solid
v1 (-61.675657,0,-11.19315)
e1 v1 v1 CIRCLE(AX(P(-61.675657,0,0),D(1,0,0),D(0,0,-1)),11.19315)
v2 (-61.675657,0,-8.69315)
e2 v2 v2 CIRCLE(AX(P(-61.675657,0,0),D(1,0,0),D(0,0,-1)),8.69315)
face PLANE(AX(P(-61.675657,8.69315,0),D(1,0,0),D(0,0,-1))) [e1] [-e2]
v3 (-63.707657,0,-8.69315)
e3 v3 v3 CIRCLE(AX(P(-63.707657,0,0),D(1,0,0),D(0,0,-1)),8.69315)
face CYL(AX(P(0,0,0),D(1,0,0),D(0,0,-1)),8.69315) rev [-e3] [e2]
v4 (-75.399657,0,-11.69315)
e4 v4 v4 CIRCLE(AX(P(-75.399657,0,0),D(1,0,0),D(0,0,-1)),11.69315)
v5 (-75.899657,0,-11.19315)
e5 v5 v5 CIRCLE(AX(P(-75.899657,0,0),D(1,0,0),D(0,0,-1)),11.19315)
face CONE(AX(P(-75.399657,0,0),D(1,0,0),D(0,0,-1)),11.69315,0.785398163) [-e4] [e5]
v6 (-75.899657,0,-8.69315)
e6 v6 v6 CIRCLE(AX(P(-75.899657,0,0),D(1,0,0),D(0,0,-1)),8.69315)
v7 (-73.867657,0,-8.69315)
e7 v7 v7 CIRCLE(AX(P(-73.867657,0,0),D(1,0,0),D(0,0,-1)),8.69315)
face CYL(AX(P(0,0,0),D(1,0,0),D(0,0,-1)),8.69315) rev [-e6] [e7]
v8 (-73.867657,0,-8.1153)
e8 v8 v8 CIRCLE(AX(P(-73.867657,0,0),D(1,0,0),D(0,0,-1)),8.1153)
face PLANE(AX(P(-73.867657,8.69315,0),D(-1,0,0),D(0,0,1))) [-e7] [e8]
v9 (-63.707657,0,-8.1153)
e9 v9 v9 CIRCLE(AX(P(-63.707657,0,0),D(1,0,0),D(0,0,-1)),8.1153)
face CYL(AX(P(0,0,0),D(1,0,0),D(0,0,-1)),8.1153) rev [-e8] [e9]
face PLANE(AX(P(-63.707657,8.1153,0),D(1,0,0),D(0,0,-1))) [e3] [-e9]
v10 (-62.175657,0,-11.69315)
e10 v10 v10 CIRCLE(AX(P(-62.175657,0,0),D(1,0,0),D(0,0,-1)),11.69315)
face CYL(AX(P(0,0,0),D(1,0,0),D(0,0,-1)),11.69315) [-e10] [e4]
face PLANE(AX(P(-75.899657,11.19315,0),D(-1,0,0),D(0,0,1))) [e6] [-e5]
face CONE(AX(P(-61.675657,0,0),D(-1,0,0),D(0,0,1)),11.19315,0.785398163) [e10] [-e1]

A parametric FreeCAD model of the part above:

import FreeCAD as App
import Part
import Sketcher
from FreeCAD import Vector
Q = App.Units.Quantity

doc = App.newDocument("Part")
params = doc.addObject("Spreadsheet::Sheet", "Params")
for row, (alias, value) in enumerate([
    ("sketch1_width", "0.4 in"),
    ("sketch1_width2", "0.08 in"),
    ("revolution_angle", "360 deg"),
], start=1):
    params.set(f"A{row}", alias)
    params.set(f"B{row}", "=" + value)
    params.setAlias(f"B{row}", alias)

body = doc.addObject("PartDesign::Body", "Body")

# Sketch on XY plane
sketch1 = body.newObject("Sketcher::SketchObject", "Sketch")
sketch1.AttachmentSupport = (doc.getObject("XY_Plane"), [""])
sketch1.MapMode = "FlatFace"
sketch1.addGeometry([
    Part.LineSegment(Vector(-75.899657, 8.69315, 0), Vector(-73.867657, 8.69315, 0)),  # 0
    Part.LineSegment(Vector(-73.867657, 8.69315, 0), Vector(-73.867657, 8.1153, 0)),  # 1
    Part.LineSegment(Vector(-73.867657, 8.1153, 0), Vector(-63.707657, 8.1153, 0)),  # 2
    Part.LineSegment(Vector(-63.707657, 8.1153, 0), Vector(-63.707657, 8.69315, 0)),  # 3
    Part.LineSegment(Vector(-63.707657, 8.69315, 0), Vector(-61.675657, 8.69315, 0)),  # 4
    Part.LineSegment(Vector(-61.675657, 8.69315, 0), Vector(-61.675657, 11.19315, 0)),  # 5
    Part.LineSegment(Vector(-61.675657, 11.19315, 0), Vector(-62.175657, 11.69315, 0)),  # 6
    Part.LineSegment(Vector(-62.175657, 11.69315, 0), Vector(-75.399657, 11.69315, 0)),  # 7
    Part.LineSegment(Vector(-75.399657, 11.69315, 0), Vector(-75.899657, 11.19315, 0)),  # 8
    Part.LineSegment(Vector(-75.899657, 11.19315, 0), Vector(-75.899657, 8.69315, 0)),  # 9
], False)
sketch1.addConstraint([
    Sketcher.Constraint("Coincident", 0, 2, 1, 1),
    Sketcher.Constraint("Coincident", 1, 2, 2, 1),
    Sketcher.Constraint("Coincident", 2, 2, 3, 1),
    Sketcher.Constraint("Coincident", 3, 2, 4, 1),
    Sketcher.Constraint("Coincident", 4, 2, 5, 1),
    Sketcher.Constraint("Coincident", 5, 2, 6, 1),
    Sketcher.Constraint("Coincident", 6, 2, 7, 1),
    Sketcher.Constraint("Coincident", 7, 2, 8, 1),
    Sketcher.Constraint("Coincident", 8, 2, 9, 1),
    Sketcher.Constraint("Coincident", 9, 2, 0, 1),
    Sketcher.Constraint("Horizontal", 0),
    Sketcher.Constraint("Vertical", 1),
    Sketcher.Constraint("Horizontal", 2),
    Sketcher.Constraint("Vertical", 3),
    Sketcher.Constraint("Horizontal", 4),
    Sketcher.Constraint("Vertical", 5),
    Sketcher.Constraint("Horizontal", 7),
    Sketcher.Constraint("Vertical", 9),
    Sketcher.Constraint("Perpendicular", 6, 8),
    Sketcher.Constraint("Horizontal", 0, 2, 3, 2),
    Sketcher.Constraint("Horizontal", 5, 2, 8, 2),
    Sketcher.Constraint("Equal", 0, 4),
    Sketcher.Constraint("Equal", 6, 8),
    Sketcher.Constraint("DistanceX", 2, 1, 2, 2, Q("0.4 in")),
    Sketcher.Constraint("DistanceX", 0, 1, 0, 2, Q("0.08 in")),
    Sketcher.Constraint("DistanceX", 7, 2, 7, 1, 13.224),
    Sketcher.Constraint("DistanceY", 5, 1, 5, 2, 2.5),
    Sketcher.Constraint("DistanceY", -1, 1, 1, 2, Q("0.3195 in")),
    Sketcher.Constraint("DistanceY", 1, 2, 1, 1, 0.57785),
    Sketcher.Constraint("DistanceX", 0, 2, -1, 1, 73.867657),
])
sketch1.setExpression("Constraints[23]", "Params.sketch1_width")
sketch1.setExpression("Constraints[24]", "Params.sketch1_width2")
revolution = body.newObject("PartDesign::Revolution", "Revolution")
revolution.Profile = sketch1
revolution.ReferenceAxis = (sketch1, ["H_Axis"])
revolution.setExpression("Angle", "Params.revolution_angle")

doc.recompute()
